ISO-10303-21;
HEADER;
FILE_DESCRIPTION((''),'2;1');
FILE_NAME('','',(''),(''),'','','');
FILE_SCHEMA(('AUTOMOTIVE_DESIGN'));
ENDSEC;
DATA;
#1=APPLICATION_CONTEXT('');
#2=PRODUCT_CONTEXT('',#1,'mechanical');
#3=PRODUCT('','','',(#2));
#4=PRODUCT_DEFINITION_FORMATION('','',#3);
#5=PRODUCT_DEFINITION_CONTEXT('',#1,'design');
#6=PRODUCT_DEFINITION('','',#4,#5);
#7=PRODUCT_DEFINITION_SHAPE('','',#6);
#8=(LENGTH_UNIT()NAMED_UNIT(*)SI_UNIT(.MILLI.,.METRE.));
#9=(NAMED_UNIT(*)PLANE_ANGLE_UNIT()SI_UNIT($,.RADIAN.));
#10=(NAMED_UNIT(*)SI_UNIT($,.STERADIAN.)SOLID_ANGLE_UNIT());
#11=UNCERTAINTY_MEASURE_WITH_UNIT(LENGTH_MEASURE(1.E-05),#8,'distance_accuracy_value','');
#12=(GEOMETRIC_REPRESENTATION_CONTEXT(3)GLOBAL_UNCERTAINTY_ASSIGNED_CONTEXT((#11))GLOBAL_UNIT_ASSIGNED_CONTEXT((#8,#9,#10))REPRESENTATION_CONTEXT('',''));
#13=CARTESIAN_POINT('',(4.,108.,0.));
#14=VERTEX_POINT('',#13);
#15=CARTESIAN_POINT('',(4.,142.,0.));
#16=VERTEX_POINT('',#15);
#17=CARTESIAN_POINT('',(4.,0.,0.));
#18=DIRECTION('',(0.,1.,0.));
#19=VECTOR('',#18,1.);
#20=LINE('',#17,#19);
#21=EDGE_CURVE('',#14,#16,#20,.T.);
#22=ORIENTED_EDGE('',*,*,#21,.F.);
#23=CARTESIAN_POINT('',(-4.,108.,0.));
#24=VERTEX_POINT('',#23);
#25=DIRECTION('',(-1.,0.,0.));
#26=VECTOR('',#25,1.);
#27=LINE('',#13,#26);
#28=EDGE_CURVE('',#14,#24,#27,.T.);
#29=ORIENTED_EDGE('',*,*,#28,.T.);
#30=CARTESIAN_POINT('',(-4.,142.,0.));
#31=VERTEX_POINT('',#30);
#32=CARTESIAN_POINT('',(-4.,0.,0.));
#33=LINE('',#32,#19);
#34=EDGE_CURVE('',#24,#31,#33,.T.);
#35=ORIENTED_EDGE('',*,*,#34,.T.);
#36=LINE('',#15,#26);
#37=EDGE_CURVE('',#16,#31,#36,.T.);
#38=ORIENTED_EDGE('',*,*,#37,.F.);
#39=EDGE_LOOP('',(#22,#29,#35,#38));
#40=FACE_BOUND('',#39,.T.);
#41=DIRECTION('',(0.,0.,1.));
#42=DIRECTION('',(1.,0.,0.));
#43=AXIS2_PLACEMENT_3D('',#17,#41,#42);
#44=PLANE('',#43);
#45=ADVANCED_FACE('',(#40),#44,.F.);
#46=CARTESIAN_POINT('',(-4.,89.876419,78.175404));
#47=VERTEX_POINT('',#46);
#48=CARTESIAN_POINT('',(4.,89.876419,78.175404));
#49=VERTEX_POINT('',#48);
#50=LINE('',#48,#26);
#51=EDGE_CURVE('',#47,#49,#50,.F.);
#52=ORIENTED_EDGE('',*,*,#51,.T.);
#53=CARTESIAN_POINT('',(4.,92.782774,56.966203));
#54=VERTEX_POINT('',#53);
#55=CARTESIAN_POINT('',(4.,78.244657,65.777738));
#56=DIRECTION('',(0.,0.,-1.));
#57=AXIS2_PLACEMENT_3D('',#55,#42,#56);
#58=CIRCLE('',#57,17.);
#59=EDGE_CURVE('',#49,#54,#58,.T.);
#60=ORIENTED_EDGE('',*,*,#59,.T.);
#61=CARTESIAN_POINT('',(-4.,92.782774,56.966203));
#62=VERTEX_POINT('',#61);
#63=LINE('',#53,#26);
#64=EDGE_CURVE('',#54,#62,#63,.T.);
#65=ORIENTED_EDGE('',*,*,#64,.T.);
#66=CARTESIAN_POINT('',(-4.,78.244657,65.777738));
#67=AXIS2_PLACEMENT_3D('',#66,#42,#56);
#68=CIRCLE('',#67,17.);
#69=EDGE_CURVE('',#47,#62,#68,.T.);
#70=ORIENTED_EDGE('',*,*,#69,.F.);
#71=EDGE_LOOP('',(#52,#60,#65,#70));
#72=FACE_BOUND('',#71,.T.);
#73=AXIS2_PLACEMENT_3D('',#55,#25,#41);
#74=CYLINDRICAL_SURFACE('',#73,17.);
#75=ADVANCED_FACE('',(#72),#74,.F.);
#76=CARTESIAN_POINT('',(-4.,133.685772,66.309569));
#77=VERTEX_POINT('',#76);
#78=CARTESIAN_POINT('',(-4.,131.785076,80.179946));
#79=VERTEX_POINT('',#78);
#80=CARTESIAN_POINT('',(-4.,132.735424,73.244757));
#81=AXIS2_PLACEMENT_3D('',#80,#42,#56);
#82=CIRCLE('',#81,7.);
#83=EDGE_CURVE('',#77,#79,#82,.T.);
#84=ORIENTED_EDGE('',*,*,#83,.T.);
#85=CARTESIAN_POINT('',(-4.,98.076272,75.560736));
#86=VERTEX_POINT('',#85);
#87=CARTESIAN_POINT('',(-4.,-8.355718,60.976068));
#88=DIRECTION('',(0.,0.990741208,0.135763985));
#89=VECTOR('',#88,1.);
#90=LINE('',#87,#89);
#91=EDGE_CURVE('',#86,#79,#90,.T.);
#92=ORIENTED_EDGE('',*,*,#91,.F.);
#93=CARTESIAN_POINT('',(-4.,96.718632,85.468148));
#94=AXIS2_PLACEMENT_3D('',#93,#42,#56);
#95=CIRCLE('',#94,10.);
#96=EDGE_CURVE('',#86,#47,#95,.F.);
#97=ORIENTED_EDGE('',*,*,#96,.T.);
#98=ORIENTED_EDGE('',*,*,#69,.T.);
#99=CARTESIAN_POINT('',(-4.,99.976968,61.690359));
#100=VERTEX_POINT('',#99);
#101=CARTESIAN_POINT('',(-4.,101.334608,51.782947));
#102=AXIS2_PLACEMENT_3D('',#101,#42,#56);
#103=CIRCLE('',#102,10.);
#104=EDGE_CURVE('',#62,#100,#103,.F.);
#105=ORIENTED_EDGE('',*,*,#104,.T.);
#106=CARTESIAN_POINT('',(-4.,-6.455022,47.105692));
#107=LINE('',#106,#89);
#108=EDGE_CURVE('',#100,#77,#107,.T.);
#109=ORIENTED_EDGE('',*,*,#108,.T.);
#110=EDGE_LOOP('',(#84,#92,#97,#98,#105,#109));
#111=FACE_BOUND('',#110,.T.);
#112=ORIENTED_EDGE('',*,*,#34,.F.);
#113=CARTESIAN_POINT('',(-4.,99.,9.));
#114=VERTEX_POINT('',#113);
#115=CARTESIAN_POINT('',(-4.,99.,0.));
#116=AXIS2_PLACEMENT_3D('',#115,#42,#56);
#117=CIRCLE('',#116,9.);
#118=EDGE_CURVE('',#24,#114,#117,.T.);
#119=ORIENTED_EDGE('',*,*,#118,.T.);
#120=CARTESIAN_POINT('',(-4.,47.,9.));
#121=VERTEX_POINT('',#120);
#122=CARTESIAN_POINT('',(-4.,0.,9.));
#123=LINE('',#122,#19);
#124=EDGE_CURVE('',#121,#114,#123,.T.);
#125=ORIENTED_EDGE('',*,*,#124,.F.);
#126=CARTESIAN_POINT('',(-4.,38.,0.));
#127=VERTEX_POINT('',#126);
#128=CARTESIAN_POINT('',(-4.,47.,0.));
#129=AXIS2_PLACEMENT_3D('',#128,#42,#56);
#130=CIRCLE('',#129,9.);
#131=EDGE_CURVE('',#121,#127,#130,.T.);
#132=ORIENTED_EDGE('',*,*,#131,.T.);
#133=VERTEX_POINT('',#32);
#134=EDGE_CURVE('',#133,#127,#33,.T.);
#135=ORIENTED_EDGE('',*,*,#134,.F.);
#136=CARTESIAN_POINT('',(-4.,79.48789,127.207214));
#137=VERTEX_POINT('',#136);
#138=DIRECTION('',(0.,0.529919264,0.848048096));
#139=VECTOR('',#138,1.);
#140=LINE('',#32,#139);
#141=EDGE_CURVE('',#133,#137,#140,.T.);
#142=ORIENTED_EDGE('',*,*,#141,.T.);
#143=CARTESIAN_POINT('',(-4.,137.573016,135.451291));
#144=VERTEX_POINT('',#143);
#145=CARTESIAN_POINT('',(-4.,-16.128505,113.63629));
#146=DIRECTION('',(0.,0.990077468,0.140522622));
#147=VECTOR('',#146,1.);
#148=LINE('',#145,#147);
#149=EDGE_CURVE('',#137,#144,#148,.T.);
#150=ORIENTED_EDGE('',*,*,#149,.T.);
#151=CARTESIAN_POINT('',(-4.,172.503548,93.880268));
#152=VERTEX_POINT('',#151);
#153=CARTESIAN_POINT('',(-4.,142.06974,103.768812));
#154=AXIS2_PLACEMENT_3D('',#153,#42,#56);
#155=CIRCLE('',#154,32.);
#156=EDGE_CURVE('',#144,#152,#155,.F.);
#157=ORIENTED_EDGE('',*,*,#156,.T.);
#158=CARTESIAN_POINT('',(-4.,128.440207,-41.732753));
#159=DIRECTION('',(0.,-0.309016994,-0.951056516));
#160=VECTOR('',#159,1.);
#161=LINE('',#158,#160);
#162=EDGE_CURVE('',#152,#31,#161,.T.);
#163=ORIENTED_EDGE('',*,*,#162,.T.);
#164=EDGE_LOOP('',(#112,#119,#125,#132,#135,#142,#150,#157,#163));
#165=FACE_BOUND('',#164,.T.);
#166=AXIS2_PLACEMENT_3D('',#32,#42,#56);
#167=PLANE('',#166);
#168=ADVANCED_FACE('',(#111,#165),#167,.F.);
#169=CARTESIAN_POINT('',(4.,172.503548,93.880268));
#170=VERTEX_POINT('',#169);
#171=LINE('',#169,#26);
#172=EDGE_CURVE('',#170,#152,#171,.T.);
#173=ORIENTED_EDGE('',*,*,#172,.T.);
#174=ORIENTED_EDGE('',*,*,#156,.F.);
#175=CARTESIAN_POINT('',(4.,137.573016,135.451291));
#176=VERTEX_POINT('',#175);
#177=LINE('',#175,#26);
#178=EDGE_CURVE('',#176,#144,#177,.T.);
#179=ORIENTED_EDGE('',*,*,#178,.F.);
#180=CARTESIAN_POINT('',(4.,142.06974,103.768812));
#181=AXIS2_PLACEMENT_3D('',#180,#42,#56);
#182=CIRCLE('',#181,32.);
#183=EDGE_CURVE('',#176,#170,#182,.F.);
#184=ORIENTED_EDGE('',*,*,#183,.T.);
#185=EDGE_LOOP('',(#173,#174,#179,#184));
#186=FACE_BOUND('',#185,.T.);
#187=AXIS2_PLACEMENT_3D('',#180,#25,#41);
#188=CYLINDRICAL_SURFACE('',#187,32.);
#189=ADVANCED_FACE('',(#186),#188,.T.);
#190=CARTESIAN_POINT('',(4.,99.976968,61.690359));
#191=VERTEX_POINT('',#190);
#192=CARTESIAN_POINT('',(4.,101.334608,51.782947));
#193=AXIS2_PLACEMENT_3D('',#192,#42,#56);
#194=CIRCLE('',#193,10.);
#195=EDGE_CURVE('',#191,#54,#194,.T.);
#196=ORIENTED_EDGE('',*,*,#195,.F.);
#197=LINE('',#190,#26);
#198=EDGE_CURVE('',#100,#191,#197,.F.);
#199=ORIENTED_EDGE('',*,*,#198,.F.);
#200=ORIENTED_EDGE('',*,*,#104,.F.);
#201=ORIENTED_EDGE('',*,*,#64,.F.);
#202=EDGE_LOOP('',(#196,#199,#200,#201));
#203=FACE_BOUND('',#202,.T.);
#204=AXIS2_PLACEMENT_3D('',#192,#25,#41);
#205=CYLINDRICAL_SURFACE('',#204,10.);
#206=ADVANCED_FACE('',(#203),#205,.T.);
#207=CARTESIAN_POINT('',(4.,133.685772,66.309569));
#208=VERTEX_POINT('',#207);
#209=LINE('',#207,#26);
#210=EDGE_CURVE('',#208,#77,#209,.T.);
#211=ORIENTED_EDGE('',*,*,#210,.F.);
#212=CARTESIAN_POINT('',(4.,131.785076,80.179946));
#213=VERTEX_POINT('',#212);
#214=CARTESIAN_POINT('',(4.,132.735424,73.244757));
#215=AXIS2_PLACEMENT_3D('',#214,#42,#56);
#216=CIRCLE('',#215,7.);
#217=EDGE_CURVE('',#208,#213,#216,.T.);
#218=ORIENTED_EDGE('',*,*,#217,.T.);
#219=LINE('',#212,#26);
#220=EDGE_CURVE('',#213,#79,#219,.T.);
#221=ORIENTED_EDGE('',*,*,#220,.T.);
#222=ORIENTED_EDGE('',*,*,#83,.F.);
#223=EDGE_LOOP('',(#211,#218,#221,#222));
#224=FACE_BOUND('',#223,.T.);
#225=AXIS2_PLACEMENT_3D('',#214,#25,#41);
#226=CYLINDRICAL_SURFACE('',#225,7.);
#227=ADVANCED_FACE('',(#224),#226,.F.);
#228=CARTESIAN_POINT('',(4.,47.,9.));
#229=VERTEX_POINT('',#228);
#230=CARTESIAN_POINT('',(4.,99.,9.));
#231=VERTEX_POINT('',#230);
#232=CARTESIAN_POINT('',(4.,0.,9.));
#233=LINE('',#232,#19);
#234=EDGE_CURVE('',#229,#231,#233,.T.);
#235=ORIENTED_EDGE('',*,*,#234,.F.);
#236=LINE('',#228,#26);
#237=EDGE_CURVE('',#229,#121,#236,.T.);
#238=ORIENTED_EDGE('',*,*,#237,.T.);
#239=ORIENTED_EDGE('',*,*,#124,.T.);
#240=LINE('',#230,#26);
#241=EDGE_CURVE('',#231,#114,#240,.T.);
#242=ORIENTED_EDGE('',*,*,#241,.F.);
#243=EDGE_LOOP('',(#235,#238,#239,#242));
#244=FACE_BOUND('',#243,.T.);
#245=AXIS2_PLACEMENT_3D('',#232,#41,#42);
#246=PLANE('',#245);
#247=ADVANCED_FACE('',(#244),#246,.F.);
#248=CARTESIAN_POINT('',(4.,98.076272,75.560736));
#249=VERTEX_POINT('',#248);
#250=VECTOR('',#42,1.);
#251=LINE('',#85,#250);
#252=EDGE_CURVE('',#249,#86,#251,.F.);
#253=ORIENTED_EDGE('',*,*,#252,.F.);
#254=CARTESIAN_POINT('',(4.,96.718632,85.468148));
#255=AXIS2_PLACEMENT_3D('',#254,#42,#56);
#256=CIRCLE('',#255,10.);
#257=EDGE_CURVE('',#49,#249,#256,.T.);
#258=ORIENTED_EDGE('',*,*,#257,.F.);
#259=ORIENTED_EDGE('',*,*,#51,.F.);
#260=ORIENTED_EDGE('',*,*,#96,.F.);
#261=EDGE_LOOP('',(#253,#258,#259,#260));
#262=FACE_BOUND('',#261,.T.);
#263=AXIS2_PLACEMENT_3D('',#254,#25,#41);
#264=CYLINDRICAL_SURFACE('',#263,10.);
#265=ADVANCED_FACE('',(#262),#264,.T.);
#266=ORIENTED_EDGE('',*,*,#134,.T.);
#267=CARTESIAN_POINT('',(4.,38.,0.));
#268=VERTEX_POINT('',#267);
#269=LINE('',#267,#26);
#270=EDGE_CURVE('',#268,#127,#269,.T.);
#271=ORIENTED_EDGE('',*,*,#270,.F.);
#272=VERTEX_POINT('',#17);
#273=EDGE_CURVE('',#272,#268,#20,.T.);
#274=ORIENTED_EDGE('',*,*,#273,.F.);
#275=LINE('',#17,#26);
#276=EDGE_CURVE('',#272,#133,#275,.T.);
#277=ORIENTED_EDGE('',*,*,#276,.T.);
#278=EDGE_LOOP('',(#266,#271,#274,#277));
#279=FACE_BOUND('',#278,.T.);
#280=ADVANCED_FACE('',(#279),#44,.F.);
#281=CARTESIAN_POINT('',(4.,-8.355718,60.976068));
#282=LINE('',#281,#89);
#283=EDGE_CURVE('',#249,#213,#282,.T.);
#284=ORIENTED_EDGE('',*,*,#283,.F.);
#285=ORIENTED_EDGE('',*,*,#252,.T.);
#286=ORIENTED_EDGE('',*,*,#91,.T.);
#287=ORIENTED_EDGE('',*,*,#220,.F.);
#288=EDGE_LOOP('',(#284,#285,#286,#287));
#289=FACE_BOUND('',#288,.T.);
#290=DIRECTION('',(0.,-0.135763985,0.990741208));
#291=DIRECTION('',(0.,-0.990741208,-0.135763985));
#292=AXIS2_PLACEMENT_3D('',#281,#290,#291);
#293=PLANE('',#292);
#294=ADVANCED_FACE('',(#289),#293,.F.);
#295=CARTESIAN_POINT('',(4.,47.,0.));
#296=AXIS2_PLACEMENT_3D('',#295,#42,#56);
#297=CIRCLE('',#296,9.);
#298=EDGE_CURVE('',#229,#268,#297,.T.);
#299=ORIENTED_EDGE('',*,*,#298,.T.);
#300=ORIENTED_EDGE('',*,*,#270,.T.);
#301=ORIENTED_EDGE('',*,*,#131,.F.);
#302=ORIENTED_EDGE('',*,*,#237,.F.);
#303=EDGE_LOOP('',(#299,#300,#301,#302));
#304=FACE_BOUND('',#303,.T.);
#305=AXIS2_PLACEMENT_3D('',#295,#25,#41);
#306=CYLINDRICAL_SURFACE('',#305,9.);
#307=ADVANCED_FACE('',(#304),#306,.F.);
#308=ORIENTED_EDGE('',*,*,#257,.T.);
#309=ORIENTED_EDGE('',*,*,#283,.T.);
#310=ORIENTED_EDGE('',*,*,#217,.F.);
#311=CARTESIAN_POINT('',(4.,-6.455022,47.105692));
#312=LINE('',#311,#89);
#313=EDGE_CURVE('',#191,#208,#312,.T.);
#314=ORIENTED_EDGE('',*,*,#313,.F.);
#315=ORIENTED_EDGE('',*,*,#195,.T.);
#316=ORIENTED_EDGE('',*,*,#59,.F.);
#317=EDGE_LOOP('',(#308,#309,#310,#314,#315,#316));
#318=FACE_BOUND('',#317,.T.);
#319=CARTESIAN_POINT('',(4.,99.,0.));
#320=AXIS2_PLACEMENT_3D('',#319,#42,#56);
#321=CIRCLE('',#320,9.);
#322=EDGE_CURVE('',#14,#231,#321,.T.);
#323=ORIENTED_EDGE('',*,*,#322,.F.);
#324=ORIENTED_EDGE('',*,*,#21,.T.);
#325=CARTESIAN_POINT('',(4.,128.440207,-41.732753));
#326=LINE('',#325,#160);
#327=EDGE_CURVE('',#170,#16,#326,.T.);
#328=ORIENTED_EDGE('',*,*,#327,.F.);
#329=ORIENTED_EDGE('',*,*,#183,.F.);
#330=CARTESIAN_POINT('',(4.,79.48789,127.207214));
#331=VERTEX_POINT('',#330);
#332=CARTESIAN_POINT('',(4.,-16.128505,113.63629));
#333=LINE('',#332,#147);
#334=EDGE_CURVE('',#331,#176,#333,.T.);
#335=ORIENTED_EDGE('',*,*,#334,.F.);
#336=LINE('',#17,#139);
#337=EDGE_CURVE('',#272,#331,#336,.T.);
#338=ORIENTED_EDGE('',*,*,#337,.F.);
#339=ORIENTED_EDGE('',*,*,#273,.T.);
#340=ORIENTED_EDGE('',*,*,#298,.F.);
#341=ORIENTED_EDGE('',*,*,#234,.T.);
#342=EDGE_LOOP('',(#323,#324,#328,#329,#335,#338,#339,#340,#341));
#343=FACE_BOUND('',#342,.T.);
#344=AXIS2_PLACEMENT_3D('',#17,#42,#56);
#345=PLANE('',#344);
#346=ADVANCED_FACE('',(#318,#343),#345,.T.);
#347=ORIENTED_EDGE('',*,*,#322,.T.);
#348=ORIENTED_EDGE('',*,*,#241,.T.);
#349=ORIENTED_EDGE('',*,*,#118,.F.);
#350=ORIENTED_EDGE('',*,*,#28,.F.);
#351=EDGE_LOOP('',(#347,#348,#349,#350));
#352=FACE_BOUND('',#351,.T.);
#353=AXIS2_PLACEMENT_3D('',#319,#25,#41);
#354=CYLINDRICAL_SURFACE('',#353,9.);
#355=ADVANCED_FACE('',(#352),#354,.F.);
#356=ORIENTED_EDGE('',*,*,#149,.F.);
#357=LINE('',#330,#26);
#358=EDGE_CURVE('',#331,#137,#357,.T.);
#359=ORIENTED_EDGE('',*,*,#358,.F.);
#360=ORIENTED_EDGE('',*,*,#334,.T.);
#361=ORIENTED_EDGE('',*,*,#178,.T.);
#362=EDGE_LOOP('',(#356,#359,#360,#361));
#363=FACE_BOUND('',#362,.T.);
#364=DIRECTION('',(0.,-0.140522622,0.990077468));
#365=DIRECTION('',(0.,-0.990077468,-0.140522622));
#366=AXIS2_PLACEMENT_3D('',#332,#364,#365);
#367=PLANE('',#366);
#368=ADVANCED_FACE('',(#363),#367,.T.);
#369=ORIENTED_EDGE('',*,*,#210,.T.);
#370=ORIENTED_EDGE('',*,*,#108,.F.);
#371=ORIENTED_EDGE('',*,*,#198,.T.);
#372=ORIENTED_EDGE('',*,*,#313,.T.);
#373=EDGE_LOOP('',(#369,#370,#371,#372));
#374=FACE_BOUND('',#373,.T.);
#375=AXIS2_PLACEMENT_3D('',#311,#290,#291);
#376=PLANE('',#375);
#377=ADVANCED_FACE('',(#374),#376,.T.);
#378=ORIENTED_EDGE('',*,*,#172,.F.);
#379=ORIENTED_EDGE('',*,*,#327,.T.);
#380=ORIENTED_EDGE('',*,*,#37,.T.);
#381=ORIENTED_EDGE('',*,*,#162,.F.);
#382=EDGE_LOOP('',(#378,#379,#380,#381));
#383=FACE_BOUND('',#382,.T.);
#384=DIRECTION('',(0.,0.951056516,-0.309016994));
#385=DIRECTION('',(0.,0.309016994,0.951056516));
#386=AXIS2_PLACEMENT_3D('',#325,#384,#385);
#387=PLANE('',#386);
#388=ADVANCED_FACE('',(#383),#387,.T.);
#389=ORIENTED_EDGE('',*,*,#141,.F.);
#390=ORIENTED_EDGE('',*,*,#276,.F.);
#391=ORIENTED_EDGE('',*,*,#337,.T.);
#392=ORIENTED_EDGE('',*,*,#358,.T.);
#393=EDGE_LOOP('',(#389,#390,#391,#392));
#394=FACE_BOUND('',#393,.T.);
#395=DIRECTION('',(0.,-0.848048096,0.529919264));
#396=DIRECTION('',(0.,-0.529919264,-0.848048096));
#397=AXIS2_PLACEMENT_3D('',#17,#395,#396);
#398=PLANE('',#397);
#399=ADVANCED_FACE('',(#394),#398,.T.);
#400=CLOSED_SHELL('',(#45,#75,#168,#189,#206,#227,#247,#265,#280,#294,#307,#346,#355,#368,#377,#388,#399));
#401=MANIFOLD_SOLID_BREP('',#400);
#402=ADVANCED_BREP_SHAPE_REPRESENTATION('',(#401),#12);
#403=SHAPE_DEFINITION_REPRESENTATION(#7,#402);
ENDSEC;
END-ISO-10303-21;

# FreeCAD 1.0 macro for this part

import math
import FreeCAD as App
import Part
import Sketcher

V = App.Vector
Q = App.Units.Quantity


def edges_at(feature, points):
    """Names of the edges that pass closest to the given points."""
    edges = feature.Shape.Edges
    near = lambda p: min(range(len(edges)), key=lambda i: edges[i].distToShape(Part.Vertex(*p))[0])
    return sorted({f"Edge{near(p) + 1}" for p in points})

doc = App.newDocument("Part")
body = doc.addObject("PartDesign::Body", "Body")

# Sketch on YZ plane
sketch1 = body.newObject("Sketcher::SketchObject", "Sketch")
sketch1.AttachmentSupport = (doc.getObject("YZ_Plane"), [""])
sketch1.MapMode = "FlatFace"
sketch1.addGeometry([
    Part.LineSegment(V(79.48789, 127.207214, 0), V(0, 0, 0)),  # 0
    Part.LineSegment(V(0, 0, 0), V(38, 0, 0)),  # 1
    Part.ArcOfCircle(Part.Circle(V(47, 0, 0), V(0, 0, 1), 9), math.radians(90), math.radians(180)),  # 2
    Part.LineSegment(V(47, 9, 0), V(99, 9, 0)),  # 3
    Part.ArcOfCircle(Part.Circle(V(99, 0, 0), V(0, 0, 1), 9), math.radians(0), math.radians(90)),  # 4
    Part.LineSegment(V(108, 0, 0), V(142, 0, 0)),  # 5
    Part.LineSegment(V(142, 0, 0), V(172.503548, 93.880268, 0)),  # 6
    Part.ArcOfCircle(Part.Circle(V(142.06974, 103.768812, 0), V(0, 0, 1), 32), math.radians(-18), math.radians(98.078089)),  # 7
    Part.LineSegment(V(137.573016, 135.451291, 0), V(79.48789, 127.207214, 0)),  # 8
    Part.LineSegment(V(133.685772, 66.309569, 0), V(94.543502, 60.945796, 0)),  # 9
    Part.ArcOfCircle(Part.Circle(V(78.244657, 65.777738, 0), V(0, 0, 1), 17), math.radians(32.118539), math.radians(343.487061)),  # 10
    Part.LineSegment(V(92.642806, 74.816173, 0), V(131.785076, 80.179946, 0)),  # 11
    Part.ArcOfCircle(Part.Circle(V(132.735424, 73.244757, 0), V(0, 0, 1), 7), math.radians(-82.1972), math.radians(97.8028)),  # 12
], False)
sketch1.addConstraint([
    Sketcher.Constraint("Coincident", 0, 2, 1, 1),
    Sketcher.Constraint("Coincident", 1, 2, 2, 2),
    Sketcher.Constraint("Tangent", 2, 1, 3, 1),
    Sketcher.Constraint("Tangent", 3, 2, 4, 2),
    Sketcher.Constraint("Coincident", 4, 1, 5, 1),
    Sketcher.Constraint("Coincident", 5, 2, 6, 1),
    Sketcher.Constraint("Tangent", 6, 2, 7, 1),
    Sketcher.Constraint("Tangent", 7, 2, 8, 1),
    Sketcher.Constraint("Coincident", 8, 2, 0, 1),
    Sketcher.Constraint("Coincident", 9, 2, 10, 2),
    Sketcher.Constraint("Coincident", 10, 1, 11, 1),
    Sketcher.Constraint("Tangent", 11, 2, 12, 2),
    Sketcher.Constraint("Tangent", 12, 1, 9, 1),
    Sketcher.Constraint("Horizontal", 1),
    Sketcher.Constraint("Horizontal", 3),
    Sketcher.Constraint("Horizontal", 5),
    Sketcher.Constraint("Coincident", 0, 2, -1, 1),
    Sketcher.Constraint("Equal", 2, 4),
    Sketcher.Constraint("PointOnObject", 2, 3, -1),
    Sketcher.Constraint("PointOnObject", 4, 1, -1),
    Sketcher.Constraint("Parallel", 9, 11),
    Sketcher.Constraint("Equal", 9, 11),
    Sketcher.Constraint("Radius", 2, 9.0),
    Sketcher.Constraint("Radius", 7, 32.0),
    Sketcher.Constraint("Radius", 10, 17.0),
    Sketcher.Constraint("Radius", 12, 7.0),
    Sketcher.Constraint("DistanceX", 1, 1, 1, 2, 38.0),
    Sketcher.Constraint("DistanceX", 3, 1, 3, 2, 52.0),
    Sketcher.Constraint("DistanceX", 5, 1, 5, 2, 34.0),
    Sketcher.Constraint("Angle", 0, Q("-122 deg")),
    Sketcher.Constraint("Angle", 6, Q("72 deg")),
    Sketcher.Constraint("Distance", 0, 150.0),
    Sketcher.Constraint("DistanceX", -1, 1, 9, 2, 94.543502),
    Sketcher.Constraint("DistanceX", -1, 1, 7, 3, 142.06974),
    Sketcher.Constraint("DistanceY", -1, 1, 10, 3, 65.777738),
    Sketcher.Constraint("DistanceX", -1, 1, 12, 1, 133.685772),
    Sketcher.Constraint("DistanceY", -1, 1, 12, 1, 66.309569),
])
pad1 = body.newObject("PartDesign::Pad", "Pad")
pad1.Profile = sketch1
pad1.Length = 8
pad1.Midplane = True
doc.recompute()

fillet = body.newObject("PartDesign::Fillet", "Fillet")
fillet.Base = (pad1, edges_at(pad1, [(0, 92.643, 74.816), (0, 94.544, 60.946)]))
fillet.Radius = 10

doc.recompute()
